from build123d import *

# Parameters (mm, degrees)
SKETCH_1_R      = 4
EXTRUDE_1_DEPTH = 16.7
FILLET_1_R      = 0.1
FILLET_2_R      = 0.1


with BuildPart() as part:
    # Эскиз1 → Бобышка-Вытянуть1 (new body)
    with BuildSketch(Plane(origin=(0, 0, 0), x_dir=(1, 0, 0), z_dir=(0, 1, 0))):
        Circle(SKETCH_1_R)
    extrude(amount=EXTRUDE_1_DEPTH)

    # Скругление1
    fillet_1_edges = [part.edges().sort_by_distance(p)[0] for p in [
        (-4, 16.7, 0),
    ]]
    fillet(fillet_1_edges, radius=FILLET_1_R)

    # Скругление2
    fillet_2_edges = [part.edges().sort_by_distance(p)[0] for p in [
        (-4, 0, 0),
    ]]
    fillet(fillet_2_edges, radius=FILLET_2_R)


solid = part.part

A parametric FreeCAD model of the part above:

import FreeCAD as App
import Part
import Sketcher


def edges_at(feature, points):
    """Names of the edges that pass closest to the given points."""
    edges = feature.Shape.Edges
    near = lambda p: min(range(len(edges)), key=lambda i: edges[i].distToShape(Part.Vertex(*p))[0])
    return sorted({f"Edge{near(p) + 1}" for p in points})

doc = App.newDocument("Part")
body = doc.addObject("PartDesign::Body", "Body")

# Sketch on XZ plane
sketch1 = body.newObject("Sketcher::SketchObject", "Sketch")
sketch1.AttachmentSupport = (doc.getObject("XZ_Plane"), [""])
sketch1.MapMode = "FlatFace"
sketch1.addGeometry(Part.Circle(App.Vector(0, 0, 0), App.Vector(0, 0, 1), 4), False)
sketch1.addConstraint(Sketcher.Constraint("Coincident", 0, 3, -1, 1))
sketch1.addConstraint(Sketcher.Constraint("Diameter", 0, 8.0))
pad1 = body.newObject("PartDesign::Pad", "Pad")
pad1.Profile = sketch1
pad1.Length = 16.7
pad1.Reversed = True
doc.recompute()

fillet = body.newObject("PartDesign::Fillet", "Fillet")
fillet.Base = (pad1, edges_at(pad1, [(-4, 16.7, 0)]))
fillet.Radius = 0.1
doc.recompute()

fillet2 = body.newObject("PartDesign::Fillet", "Fillet001")
fillet2.Base = (fillet, edges_at(fillet, [(-4, 0, 0)]))
fillet2.Radius = 0.1

doc.recompute()
